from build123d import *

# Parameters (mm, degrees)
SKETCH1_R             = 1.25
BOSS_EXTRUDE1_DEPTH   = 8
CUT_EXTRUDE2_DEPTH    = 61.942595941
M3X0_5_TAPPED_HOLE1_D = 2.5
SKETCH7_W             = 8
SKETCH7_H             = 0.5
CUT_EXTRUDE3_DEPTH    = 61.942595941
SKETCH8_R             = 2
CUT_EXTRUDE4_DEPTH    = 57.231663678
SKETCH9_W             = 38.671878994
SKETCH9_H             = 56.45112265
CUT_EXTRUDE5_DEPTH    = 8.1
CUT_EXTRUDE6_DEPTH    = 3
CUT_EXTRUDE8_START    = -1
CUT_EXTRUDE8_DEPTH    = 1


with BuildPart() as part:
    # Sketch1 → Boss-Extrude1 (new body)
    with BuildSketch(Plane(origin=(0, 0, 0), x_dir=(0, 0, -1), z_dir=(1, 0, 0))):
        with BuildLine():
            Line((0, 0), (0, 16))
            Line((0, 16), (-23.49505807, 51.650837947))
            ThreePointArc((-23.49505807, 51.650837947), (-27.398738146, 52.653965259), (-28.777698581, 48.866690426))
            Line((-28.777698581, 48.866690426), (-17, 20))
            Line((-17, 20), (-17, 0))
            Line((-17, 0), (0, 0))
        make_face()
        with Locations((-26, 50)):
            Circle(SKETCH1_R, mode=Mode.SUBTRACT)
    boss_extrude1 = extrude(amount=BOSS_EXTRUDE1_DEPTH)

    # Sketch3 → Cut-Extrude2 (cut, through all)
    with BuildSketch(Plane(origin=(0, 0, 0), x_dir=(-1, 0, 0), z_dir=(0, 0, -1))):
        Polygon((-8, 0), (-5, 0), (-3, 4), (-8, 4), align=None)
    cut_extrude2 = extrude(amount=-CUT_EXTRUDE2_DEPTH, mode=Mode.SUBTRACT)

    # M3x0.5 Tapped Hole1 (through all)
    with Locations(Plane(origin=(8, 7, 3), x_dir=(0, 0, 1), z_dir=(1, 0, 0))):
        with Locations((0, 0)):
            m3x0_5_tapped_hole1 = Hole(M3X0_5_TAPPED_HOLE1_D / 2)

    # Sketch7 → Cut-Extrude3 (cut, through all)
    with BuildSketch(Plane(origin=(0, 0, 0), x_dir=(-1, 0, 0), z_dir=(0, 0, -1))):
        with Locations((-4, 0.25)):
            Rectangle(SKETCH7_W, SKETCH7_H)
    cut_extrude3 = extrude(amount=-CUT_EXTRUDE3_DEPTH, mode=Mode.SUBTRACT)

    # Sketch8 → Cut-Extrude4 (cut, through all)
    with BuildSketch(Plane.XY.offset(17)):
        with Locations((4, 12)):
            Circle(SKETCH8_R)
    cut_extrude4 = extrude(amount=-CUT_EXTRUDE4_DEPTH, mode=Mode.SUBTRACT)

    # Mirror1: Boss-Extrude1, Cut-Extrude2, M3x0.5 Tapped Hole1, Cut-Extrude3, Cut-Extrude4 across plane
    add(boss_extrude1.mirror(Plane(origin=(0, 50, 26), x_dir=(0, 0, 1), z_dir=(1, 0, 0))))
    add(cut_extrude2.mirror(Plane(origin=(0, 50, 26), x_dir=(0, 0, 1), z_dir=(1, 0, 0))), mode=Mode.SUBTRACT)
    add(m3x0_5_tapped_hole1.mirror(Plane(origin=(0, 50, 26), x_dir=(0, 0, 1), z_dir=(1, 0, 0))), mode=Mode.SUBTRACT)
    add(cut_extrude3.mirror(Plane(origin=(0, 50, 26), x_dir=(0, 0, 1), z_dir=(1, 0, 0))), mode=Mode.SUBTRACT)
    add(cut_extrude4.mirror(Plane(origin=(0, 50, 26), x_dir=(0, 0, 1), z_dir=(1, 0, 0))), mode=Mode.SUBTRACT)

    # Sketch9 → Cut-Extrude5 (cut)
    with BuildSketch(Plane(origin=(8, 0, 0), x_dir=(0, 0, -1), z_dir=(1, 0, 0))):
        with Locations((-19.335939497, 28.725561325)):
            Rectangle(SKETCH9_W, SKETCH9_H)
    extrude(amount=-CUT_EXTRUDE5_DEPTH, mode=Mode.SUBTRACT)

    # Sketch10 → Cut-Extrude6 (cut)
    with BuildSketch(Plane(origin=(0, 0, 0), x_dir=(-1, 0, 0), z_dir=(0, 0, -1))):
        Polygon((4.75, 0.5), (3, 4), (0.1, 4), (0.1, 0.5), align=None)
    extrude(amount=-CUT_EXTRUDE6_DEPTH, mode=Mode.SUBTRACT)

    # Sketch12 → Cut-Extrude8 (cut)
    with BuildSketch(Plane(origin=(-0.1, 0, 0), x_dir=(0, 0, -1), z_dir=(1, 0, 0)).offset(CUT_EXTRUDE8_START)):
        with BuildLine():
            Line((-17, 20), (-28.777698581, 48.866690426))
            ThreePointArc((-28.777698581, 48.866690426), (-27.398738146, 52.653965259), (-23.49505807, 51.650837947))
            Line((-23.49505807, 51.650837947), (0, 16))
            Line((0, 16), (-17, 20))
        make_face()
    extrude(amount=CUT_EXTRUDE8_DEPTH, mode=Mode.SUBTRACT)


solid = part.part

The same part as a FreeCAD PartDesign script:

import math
import FreeCAD as App
import Part
import Sketcher

V = App.Vector

doc = App.newDocument("Part")
body = doc.addObject("PartDesign::Body", "Body")

# Sketch on YZ plane
sketch1 = body.newObject("Sketcher::SketchObject", "Sketch")
sketch1.AttachmentSupport = (doc.getObject("YZ_Plane"), [""])
sketch1.MapMode = "FlatFace"
sketch1.addGeometry(Part.LineSegment(V(0, 0, 0), V(16, 0, 0)), False)
sketch1.addGeometry(Part.LineSegment(V(16, 0, 0), V(51.7, 23.5, 0)), False)
sketch1.addGeometry(Part.ArcOfCircle(Part.Circle(V(50, 26, 0), V(0, 0, 1), 3), math.radians(-57), math.radians(112)), False)
sketch1.addGeometry(Part.LineSegment(V(48.9, 28.8, 0), V(20, 17, 0)), False)
sketch1.addGeometry(Part.LineSegment(V(20, 17, 0), V(0, 17, 0)), False)
sketch1.addGeometry(Part.LineSegment(V(0, 17, 0), V(0, 0, 0)), False)
sketch1.addGeometry(Part.Circle(V(50, 26, 0), V(0, 0, 1), 1.2), False)
sketch1.addConstraint(Sketcher.Constraint("Coincident", 0, 2, 1, 1))
sketch1.addConstraint(Sketcher.Constraint("Tangent", 1, 2, 2, 1))
sketch1.addConstraint(Sketcher.Constraint("Tangent", 2, 2, 3, 1))
sketch1.addConstraint(Sketcher.Constraint("Coincident", 3, 2, 4, 1))
sketch1.addConstraint(Sketcher.Constraint("Coincident", 4, 2, 5, 1))
sketch1.addConstraint(Sketcher.Constraint("Coincident", 5, 2, 0, 1))
sketch1.addConstraint(Sketcher.Constraint("Horizontal", 0))
sketch1.addConstraint(Sketcher.Constraint("Horizontal", 4))
sketch1.addConstraint(Sketcher.Constraint("Vertical", 5))
sketch1.addConstraint(Sketcher.Constraint("Coincident", 5, 2, -1, 1))
sketch1.addConstraint(Sketcher.Constraint("Coincident", 6, 3, 2, 3))
sketch1.addConstraint(Sketcher.Constraint("Radius", 2, 3.0))
sketch1.addConstraint(Sketcher.Constraint("Diameter", 6, 2.5))
sketch1.addConstraint(Sketcher.Constraint("DistanceX", 0, 1, 0, 2, 16.0))
sketch1.addConstraint(Sketcher.Constraint("DistanceX", 4, 2, 4, 1, 20.0))
sketch1.addConstraint(Sketcher.Constraint("DistanceY", 5, 2, 5, 1, 17.0))
sketch1.addConstraint(Sketcher.Constraint("DistanceX", -1, 1, 2, 3, 50.0))
sketch1.addConstraint(Sketcher.Constraint("DistanceY", -1, 1, 2, 3, 26.0))
pad1 = body.newObject("PartDesign::Pad", "Pad")
pad1.Profile = sketch1
pad1.Length = 8

# Sketch on XY plane
sketch2 = body.newObject("Sketcher::SketchObject", "Sketch001")
sketch2.AttachmentSupport = (doc.getObject("XY_Plane"), [""])
sketch2.MapMode = "FlatFace"
sketch2.addGeometry(Part.LineSegment(V(8, 0, 0), V(5, 0, 0)), False)
sketch2.addGeometry(Part.LineSegment(V(5, 0, 0), V(3, 4, 0)), False)
sketch2.addGeometry(Part.LineSegment(V(3, 4, 0), V(8, 4, 0)), False)
sketch2.addGeometry(Part.LineSegment(V(8, 4, 0), V(8, 0, 0)), False)
sketch2.addConstraint(Sketcher.Constraint("Coincident", 0, 2, 1, 1))
sketch2.addConstraint(Sketcher.Constraint("Coincident", 1, 2, 2, 1))
sketch2.addConstraint(Sketcher.Constraint("Coincident", 2, 2, 3, 1))
sketch2.addConstraint(Sketcher.Constraint("Coincident", 3, 2, 0, 1))
sketch2.addConstraint(Sketcher.Constraint("Horizontal", 0))
sketch2.addConstraint(Sketcher.Constraint("Horizontal", 2))
sketch2.addConstraint(Sketcher.Constraint("Vertical", 3))
sketch2.addConstraint(Sketcher.Constraint("PointOnObject", 0, 2, -1))
sketch2.addConstraint(Sketcher.Constraint("DistanceX", 0, 2, 0, 1, 3.0))
sketch2.addConstraint(Sketcher.Constraint("DistanceX", 2, 1, 2, 2, 5.0))
sketch2.addConstraint(Sketcher.Constraint("DistanceY", 3, 2, 3, 1, 4.0))
sketch2.addConstraint(Sketcher.Constraint("DistanceX", -1, 1, 0, 2, 5.0))
pocket1 = body.newObject("PartDesign::Pocket", "Pocket")
pocket1.Profile = sketch2
pocket1.Type = "ThroughAll"
pocket1.Reversed = True

# Sketch on YZ plane
sketch3 = body.newObject("Sketcher::SketchObject", "Sketch002")
sketch3.AttachmentSupport = (doc.getObject("YZ_Plane"), [""])
sketch3.MapMode = "FlatFace"
sketch3.AttachmentOffset = App.Placement(V(0, 0, 8), App.Rotation())
sketch3.addGeometry(Part.Circle(V(7, 3, 0), V(0, 0, 1), 1.2), False)
sketch3.addConstraint(Sketcher.Constraint("Diameter", 0, 2.5))
sketch3.addConstraint(Sketcher.Constraint("DistanceX", -1, 1, 0, 3, 7.0))
sketch3.addConstraint(Sketcher.Constraint("DistanceY", -1, 1, 0, 3, 3.0))
doc.recompute()
hole = body.newObject("PartDesign::Hole", "Hole")
hole.Profile = sketch3
hole.ThreadType = "None"
hole.Diameter = 2.5
hole.DepthType = "ThroughAll"

# Sketch on XY plane
sketch4 = body.newObject("Sketcher::SketchObject", "Sketch003")
sketch4.AttachmentSupport = (doc.getObject("XY_Plane"), [""])
sketch4.MapMode = "FlatFace"
sketch4.addGeometry(Part.LineSegment(V(8, 0.5, 0), V(8, 0, 0)), False)
sketch4.addGeometry(Part.LineSegment(V(8, 0, 0), V(0, 0, 0)), False)
sketch4.addGeometry(Part.LineSegment(V(0, 0, 0), V(0, 0.5, 0)), False)
sketch4.addGeometry(Part.LineSegment(V(0, 0.5, 0), V(8, 0.5, 0)), False)
sketch4.addConstraint(Sketcher.Constraint("Coincident", 0, 2, 1, 1))
sketch4.addConstraint(Sketcher.Constraint("Coincident", 1, 2, 2, 1))
sketch4.addConstraint(Sketcher.Constraint("Coincident", 2, 2, 3, 1))
sketch4.addConstraint(Sketcher.Constraint("Coincident", 3, 2, 0, 1))
sketch4.addConstraint(Sketcher.Constraint("Vertical", 0))
sketch4.addConstraint(Sketcher.Constraint("Horizontal", 1))
sketch4.addConstraint(Sketcher.Constraint("Vertical", 2))
sketch4.addConstraint(Sketcher.Constraint("Horizontal", 3))
sketch4.addConstraint(Sketcher.Constraint("Coincident", 1, 2, -1, 1))
sketch4.addConstraint(Sketcher.Constraint("DistanceX", 1, 2, 1, 1, 8.0))
sketch4.addConstraint(Sketcher.Constraint("DistanceY", 0, 2, 0, 1, 0.5))
pocket2 = body.newObject("PartDesign::Pocket", "Pocket001")
pocket2.Profile = sketch4
pocket2.Type = "ThroughAll"
pocket2.Reversed = True

# Sketch on XY plane
sketch5 = body.newObject("Sketcher::SketchObject", "Sketch004")
sketch5.AttachmentSupport = (doc.getObject("XY_Plane"), [""])
sketch5.MapMode = "FlatFace"
sketch5.AttachmentOffset = App.Placement(V(0, 0, 17), App.Rotation())
sketch5.addGeometry(Part.Circle(V(4, 12, 0), V(0, 0, 1), 2), False)
sketch5.addConstraint(Sketcher.Constraint("Diameter", 0, 4.0))
sketch5.addConstraint(Sketcher.Constraint("DistanceX", -1, 1, 0, 3, 4.0))
sketch5.addConstraint(Sketcher.Constraint("DistanceY", -1, 1, 0, 3, 12.0))
pocket3 = body.newObject("PartDesign::Pocket", "Pocket002")
pocket3.Profile = sketch5
pocket3.Type = "ThroughAll"
doc.recompute()

mirrored = body.newObject("PartDesign::Mirrored", "Mirrored")
mirrored.Originals = [pad1, pocket1, hole, pocket2, pocket3]
mirrored.MirrorPlane = (doc.getObject("YZ_Plane"), [""])
body.Tip = mirrored

# Sketch on YZ plane
sketch6 = body.newObject("Sketcher::SketchObject", "Sketch005")
sketch6.AttachmentSupport = (doc.getObject("YZ_Plane"), [""])
sketch6.MapMode = "FlatFace"
sketch6.AttachmentOffset = App.Placement(V(0, 0, 8), App.Rotation())
sketch6.addGeometry(Part.LineSegment(V(57, 39, 0), V(0, 39, 0)), False)
sketch6.addGeometry(Part.LineSegment(V(0, 39, 0), V(0, 0, 0)), False)
sketch6.addGeometry(Part.LineSegment(V(0, 0, 0), V(57, 0, 0)), False)
sketch6.addGeometry(Part.LineSegment(V(57, 0, 0), V(57, 39, 0)), False)
sketch6.addConstraint(Sketcher.Constraint("Coincident", 0, 2, 1, 1))
sketch6.addConstraint(Sketcher.Constraint("Coincident", 1, 2, 2, 1))
sketch6.addConstraint(Sketcher.Constraint("Coincident", 2, 2, 3, 1))
sketch6.addConstraint(Sketcher.Constraint("Coincident", 3, 2, 0, 1))
sketch6.addConstraint(Sketcher.Constraint("Horizontal", 0))
sketch6.addConstraint(Sketcher.Constraint("Vertical", 1))
sketch6.addConstraint(Sketcher.Constraint("Horizontal", 2))
sketch6.addConstraint(Sketcher.Constraint("Vertical", 3))
sketch6.addConstraint(Sketcher.Constraint("PointOnObject", 1, 2, -1))
sketch6.addConstraint(Sketcher.Constraint("DistanceX", -1, 1, 0, 2, 0.5))
sketch6.addConstraint(Sketcher.Constraint("DistanceY", 1, 2, 1, 1, 38.671879))
sketch6.addConstraint(Sketcher.Constraint("DistanceX", 0, 2, 0, 1, 56.451123))
pocket4 = body.newObject("PartDesign::Pocket", "Pocket003")
pocket4.Profile = sketch6
pocket4.Length = 8.1

# Sketch on XY plane
sketch7 = body.newObject("Sketcher::SketchObject", "Sketch006")
sketch7.AttachmentSupport = (doc.getObject("XY_Plane"), [""])
sketch7.MapMode = "FlatFace"
sketch7.addGeometry(Part.LineSegment(V(-4.8, 0.5, 0), V(-3, 4, 0)), False)
sketch7.addGeometry(Part.LineSegment(V(-3, 4, 0), V(-0.1, 4, 0)), False)
sketch7.addGeometry(Part.LineSegment(V(-0.1, 4, 0), V(-0.1, 0.5, 0)), False)
sketch7.addGeometry(Part.LineSegment(V(-0.1, 0.5, 0), V(-4.8, 0.5, 0)), False)
sketch7.addConstraint(Sketcher.Constraint("Coincident", 0, 2, 1, 1))
sketch7.addConstraint(Sketcher.Constraint("Coincident", 1, 2, 2, 1))
sketch7.addConstraint(Sketcher.Constraint("Coincident", 2, 2, 3, 1))
sketch7.addConstraint(Sketcher.Constraint("Coincident", 3, 2, 0, 1))
sketch7.addConstraint(Sketcher.Constraint("Horizontal", 1))
sketch7.addConstraint(Sketcher.Constraint("Vertical", 2))
sketch7.addConstraint(Sketcher.Constraint("Horizontal", 3))
sketch7.addConstraint(Sketcher.Constraint("DistanceX", 1, 1, 1, 2, 2.9))
sketch7.addConstraint(Sketcher.Constraint("DistanceY", 2, 2, 2, 1, 3.5))
sketch7.addConstraint(Sketcher.Constraint("DistanceX", 0, 2, -1, 1, 3.0))
sketch7.addConstraint(Sketcher.Constraint("DistanceY", -1, 1, 0, 2, 4.0))
sketch7.addConstraint(Sketcher.Constraint("DistanceX", 3, 2, 3, 1, 4.65))
pocket5 = body.newObject("PartDesign::Pocket", "Pocket004")
pocket5.Profile = sketch7
pocket5.Length = 3
pocket5.Reversed = True

# Sketch on YZ plane
sketch8 = body.newObject("Sketcher::SketchObject", "Sketch007")
sketch8.AttachmentSupport = (doc.getObject("YZ_Plane"), [""])
sketch8.MapMode = "FlatFace"
sketch8.AttachmentOffset = App.Placement(V(0, 0, -1.1), App.Rotation())
sketch8.addGeometry(Part.LineSegment(V(48.9, 28.8, 0), V(20, 17, 0)), False)
sketch8.addGeometry(Part.LineSegment(V(20, 17, 0), V(16, 0, 0)), False)
sketch8.addGeometry(Part.LineSegment(V(16, 0, 0), V(51.7, 23.5, 0)), False)
sketch8.addGeometry(Part.ArcOfCircle(Part.Circle(V(50, 26, 0), V(0, 0, 1), 3), math.radians(-57), math.radians(112)), False)
sketch8.addConstraint(Sketcher.Constraint("Coincident", 0, 2, 1, 1))
sketch8.addConstraint(Sketcher.Constraint("Coincident", 1, 2, 2, 1))
sketch8.addConstraint(Sketcher.Constraint("Tangent", 2, 2, 3, 1))
sketch8.addConstraint(Sketcher.Constraint("Tangent", 3, 2, 0, 1))
sketch8.addConstraint(Sketcher.Constraint("PointOnObject", 1, 2, -1))
sketch8.addConstraint(Sketcher.Constraint("Radius", 3, 3.0))
sketch8.addConstraint(Sketcher.Constraint("DistanceX", -1, 1, 3, 3, 50.0))
sketch8.addConstraint(Sketcher.Constraint("DistanceY", -1, 1, 3, 3, 26.0))
sketch8.addConstraint(Sketcher.Constraint("DistanceX", -1, 1, 0, 2, 20.0))
sketch8.addConstraint(Sketcher.Constraint("DistanceY", -1, 1, 0, 2, 17.0))
sketch8.addConstraint(Sketcher.Constraint("DistanceX", -1, 1, 1, 2, 16.0))
pocket6 = body.newObject("PartDesign::Pocket", "Pocket005")
pocket6.Profile = sketch8
pocket6.Length = 1
pocket6.Reversed = True

doc.recompute()
